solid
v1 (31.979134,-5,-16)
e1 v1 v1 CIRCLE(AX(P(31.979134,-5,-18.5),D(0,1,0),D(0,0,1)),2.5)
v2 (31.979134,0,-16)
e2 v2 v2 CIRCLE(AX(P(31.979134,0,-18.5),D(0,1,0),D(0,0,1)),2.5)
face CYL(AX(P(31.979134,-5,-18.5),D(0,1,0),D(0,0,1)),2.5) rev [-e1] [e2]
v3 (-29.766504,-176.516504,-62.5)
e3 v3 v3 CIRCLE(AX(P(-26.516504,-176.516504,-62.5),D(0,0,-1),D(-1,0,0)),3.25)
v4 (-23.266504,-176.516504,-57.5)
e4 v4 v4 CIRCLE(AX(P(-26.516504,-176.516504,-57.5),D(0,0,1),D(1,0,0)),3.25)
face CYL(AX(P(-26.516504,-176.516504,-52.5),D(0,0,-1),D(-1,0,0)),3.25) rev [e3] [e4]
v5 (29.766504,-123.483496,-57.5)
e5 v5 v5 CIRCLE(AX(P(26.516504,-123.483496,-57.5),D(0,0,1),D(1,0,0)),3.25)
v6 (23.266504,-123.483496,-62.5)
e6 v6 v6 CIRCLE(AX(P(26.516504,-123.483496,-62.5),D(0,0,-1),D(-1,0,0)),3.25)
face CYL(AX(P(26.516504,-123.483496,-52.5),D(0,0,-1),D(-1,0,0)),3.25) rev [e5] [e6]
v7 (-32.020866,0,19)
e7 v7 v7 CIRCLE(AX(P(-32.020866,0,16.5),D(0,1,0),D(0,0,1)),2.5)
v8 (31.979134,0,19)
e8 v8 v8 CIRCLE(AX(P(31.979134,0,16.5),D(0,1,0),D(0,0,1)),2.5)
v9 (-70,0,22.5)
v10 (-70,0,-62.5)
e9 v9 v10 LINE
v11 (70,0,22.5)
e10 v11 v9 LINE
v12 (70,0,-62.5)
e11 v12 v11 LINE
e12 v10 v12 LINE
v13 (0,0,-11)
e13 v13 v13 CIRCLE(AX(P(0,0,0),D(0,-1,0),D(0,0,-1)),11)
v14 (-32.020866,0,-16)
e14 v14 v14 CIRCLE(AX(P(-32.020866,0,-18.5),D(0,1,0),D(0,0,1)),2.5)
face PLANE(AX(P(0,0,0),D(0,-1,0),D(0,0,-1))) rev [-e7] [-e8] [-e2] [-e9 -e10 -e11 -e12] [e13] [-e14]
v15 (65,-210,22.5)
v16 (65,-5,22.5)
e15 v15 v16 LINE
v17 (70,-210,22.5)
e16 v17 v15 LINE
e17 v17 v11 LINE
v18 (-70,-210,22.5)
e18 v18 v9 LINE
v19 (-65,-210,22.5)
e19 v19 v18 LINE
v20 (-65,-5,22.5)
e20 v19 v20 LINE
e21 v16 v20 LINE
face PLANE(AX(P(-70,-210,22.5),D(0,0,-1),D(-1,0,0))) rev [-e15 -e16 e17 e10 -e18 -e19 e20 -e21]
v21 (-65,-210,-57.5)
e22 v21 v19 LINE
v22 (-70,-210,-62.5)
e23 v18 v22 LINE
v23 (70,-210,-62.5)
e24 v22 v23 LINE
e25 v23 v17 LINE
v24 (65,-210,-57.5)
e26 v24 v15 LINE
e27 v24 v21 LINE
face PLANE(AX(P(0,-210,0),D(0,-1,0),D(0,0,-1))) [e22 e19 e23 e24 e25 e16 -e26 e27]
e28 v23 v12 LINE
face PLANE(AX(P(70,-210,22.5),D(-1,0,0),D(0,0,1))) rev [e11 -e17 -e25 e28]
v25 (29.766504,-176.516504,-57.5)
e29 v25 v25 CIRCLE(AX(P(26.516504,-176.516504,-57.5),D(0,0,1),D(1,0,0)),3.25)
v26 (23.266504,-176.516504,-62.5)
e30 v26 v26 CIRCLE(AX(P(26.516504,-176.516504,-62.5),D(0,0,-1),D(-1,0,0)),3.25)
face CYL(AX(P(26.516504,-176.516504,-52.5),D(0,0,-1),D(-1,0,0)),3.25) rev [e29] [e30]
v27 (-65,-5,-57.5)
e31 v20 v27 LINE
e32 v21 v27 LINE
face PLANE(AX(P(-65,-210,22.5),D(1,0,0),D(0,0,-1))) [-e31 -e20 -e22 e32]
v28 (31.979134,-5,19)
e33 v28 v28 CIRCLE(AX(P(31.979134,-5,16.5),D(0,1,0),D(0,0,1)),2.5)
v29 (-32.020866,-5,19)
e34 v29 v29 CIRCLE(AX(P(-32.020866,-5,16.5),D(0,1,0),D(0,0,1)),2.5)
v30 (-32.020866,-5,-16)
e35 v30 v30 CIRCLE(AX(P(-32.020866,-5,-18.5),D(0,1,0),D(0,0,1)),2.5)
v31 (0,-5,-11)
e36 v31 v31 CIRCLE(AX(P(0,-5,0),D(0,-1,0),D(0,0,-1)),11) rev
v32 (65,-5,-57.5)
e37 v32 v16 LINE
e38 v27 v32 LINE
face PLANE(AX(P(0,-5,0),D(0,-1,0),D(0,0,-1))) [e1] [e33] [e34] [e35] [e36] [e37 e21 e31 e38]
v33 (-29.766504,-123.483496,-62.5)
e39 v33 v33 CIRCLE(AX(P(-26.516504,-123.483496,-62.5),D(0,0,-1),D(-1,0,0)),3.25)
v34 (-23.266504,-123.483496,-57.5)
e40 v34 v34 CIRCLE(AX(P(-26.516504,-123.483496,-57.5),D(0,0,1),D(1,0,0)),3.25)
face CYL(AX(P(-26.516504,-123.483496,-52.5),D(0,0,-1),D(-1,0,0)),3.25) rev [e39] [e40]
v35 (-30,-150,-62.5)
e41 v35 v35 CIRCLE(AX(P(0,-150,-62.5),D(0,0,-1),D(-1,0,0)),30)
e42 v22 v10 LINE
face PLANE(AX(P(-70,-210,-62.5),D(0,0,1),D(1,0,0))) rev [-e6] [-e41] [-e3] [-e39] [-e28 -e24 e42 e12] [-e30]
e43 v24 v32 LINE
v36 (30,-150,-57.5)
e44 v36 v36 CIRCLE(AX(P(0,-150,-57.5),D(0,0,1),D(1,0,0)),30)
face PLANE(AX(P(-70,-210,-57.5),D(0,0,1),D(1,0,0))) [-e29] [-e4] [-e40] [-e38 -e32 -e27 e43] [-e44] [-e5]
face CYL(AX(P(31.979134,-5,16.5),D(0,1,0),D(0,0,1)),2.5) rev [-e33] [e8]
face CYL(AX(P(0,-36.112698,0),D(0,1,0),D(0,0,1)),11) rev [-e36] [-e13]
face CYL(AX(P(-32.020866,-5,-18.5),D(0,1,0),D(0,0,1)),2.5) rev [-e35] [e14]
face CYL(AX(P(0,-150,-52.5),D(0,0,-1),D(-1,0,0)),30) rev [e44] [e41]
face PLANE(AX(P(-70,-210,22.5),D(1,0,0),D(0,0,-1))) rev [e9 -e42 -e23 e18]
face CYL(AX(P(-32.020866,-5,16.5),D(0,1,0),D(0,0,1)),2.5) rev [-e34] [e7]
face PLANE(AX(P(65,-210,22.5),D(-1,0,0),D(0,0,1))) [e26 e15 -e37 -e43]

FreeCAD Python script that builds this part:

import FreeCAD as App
import Part
import Sketcher


def faces_at(feature, points):
    """Names of the faces that lie closest to the given points."""
    faces = feature.Shape.Faces
    near = lambda p: min(range(len(faces)), key=lambda i: faces[i].distToShape(Part.Vertex(*p))[0])
    return sorted({f"Face{near(p) + 1}" for p in points})

doc = App.newDocument("Part")
body = doc.addObject("PartDesign::Body", "Body")

# Sketch on XZ plane
sketch1 = doc.addObject("Sketcher::SketchObject", "Sketch")
body.addObject(sketch1)
sketch1.AttachmentSupport = (doc.XZ_Plane, [""])
sketch1.MapMode = "FlatFace"
sketch1.addGeometry(Part.Circle(App.Vector(0, 0, 0), App.Vector(0, 0, 1), 13), False)
sketch1.addConstraint(Sketcher.Constraint("Coincident", 0, 3, -1, 1))
sketch1.addConstraint(Sketcher.Constraint("Diameter", 0, 26.0))
pad1 = doc.addObject("PartDesign::Pad", "Pad")
body.addObject(pad1)
pad1.Profile = sketch1
pad1.Length = 20
pad1.Reversed = True

# Sketch on XZ plane
sketch2 = doc.addObject("Sketcher::SketchObject", "Sketch001")
body.addObject(sketch2)
sketch2.AttachmentSupport = (doc.XZ_Plane, [""])
sketch2.MapMode = "FlatFace"
sketch2.AttachmentOffset = App.Placement(App.Vector(0, 0, -20), App.Rotation())
sketch2.addGeometry(Part.Circle(App.Vector(0, 0, 0), App.Vector(0, 0, 1), 13), False)
sketch2.addConstraint(Sketcher.Constraint("Coincident", 0, 3, -1, 1))
sketch2.addConstraint(Sketcher.Constraint("Diameter", 0, 26.0))
pad2 = doc.addObject("PartDesign::Pad", "Pad001")
body.addObject(pad2)
pad2.Profile = sketch2
pad2.Length = 400
pad2.Reversed = True
body2 = doc.addObject("PartDesign::Body", "Body001")

# Sketch on XZ plane
sketch3 = doc.addObject("Sketcher::SketchObject", "Sketch002")
body2.addObject(sketch3)
sketch3.AttachmentSupport = (doc.getObject("XZ_Plane001"), [""])
sketch3.MapMode = "FlatFace"
sketch3.addGeometry(Part.LineSegment(App.Vector(-70, 22.5, 0), App.Vector(-70, -62.5, 0)), False)
sketch3.addGeometry(Part.LineSegment(App.Vector(-70, -62.5, 0), App.Vector(70, -62.5, 0)), False)
sketch3.addGeometry(Part.LineSegment(App.Vector(70, -62.5, 0), App.Vector(70, 22.5, 0)), False)
sketch3.addGeometry(Part.LineSegment(App.Vector(70, 22.5, 0), App.Vector(-70, 22.5, 0)), False)
sketch3.addConstraint(Sketcher.Constraint("Coincident", 0, 2, 1, 1))
sketch3.addConstraint(Sketcher.Constraint("Coincident", 1, 2, 2, 1))
sketch3.addConstraint(Sketcher.Constraint("Coincident", 2, 2, 3, 1))
sketch3.addConstraint(Sketcher.Constraint("Coincident", 3, 2, 0, 1))
sketch3.addConstraint(Sketcher.Constraint("Vertical", 0))
sketch3.addConstraint(Sketcher.Constraint("Horizontal", 1))
sketch3.addConstraint(Sketcher.Constraint("Vertical", 2))
sketch3.addConstraint(Sketcher.Constraint("Horizontal", 3))
sketch3.addConstraint(Sketcher.Constraint("DistanceX", 1, 1, 1, 2, 140.0))
sketch3.addConstraint(Sketcher.Constraint("DistanceY", 0, 2, 0, 1, 85.0))
sketch3.addConstraint(Sketcher.Constraint("DistanceX", 0, 2, -1, 1, 70.0))
sketch3.addConstraint(Sketcher.Constraint("DistanceY", 0, 2, -1, 1, 62.5))
pad3 = doc.addObject("PartDesign::Pad", "Pad002")
body2.addObject(pad3)
pad3.Profile = sketch3
pad3.Length = 210
doc.recompute()

thickness = doc.addObject("PartDesign::Thickness", "Thickness")
body2.addObject(thickness)
thickness.Base = (pad3, faces_at(pad3, [(0, -105, 22.5)]))
thickness.Value = 5
thickness.Reversed = True
thickness.Join = "Intersection"

# Sketch on XY plane
sketch4 = doc.addObject("Sketcher::SketchObject", "Sketch003")
body2.addObject(sketch4)
sketch4.AttachmentSupport = (doc.getObject("XY_Plane001"), [""])
sketch4.MapMode = "FlatFace"
sketch4.AttachmentOffset = App.Placement(App.Vector(0, 0, 22.5), App.Rotation())
sketch4.addGeometry(Part.LineSegment(App.Vector(-65, -205, 0), App.Vector(-65, -210, 0)), False)
sketch4.addGeometry(Part.LineSegment(App.Vector(-65, -210, 0), App.Vector(65, -210, 0)), False)
sketch4.addGeometry(Part.LineSegment(App.Vector(65, -210, 0), App.Vector(65, -205, 0)), False)
sketch4.addGeometry(Part.LineSegment(App.Vector(65, -205, 0), App.Vector(-65, -205, 0)), False)
sketch4.addConstraint(Sketcher.Constraint("Coincident", 0, 2, 1, 1))
sketch4.addConstraint(Sketcher.Constraint("Coincident", 1, 2, 2, 1))
sketch4.addConstraint(Sketcher.Constraint("Coincident", 2, 2, 3, 1))
sketch4.addConstraint(Sketcher.Constraint("Coincident", 3, 2, 0, 1))
sketch4.addConstraint(Sketcher.Constraint("Vertical", 0))
sketch4.addConstraint(Sketcher.Constraint("Horizontal", 1))
sketch4.addConstraint(Sketcher.Constraint("Vertical", 2))
sketch4.addConstraint(Sketcher.Constraint("Horizontal", 3))
sketch4.addConstraint(Sketcher.Constraint("DistanceX", 1, 1, 1, 2, 130.0))
sketch4.addConstraint(Sketcher.Constraint("DistanceY", 0, 2, 0, 1, 5.0))
sketch4.addConstraint(Sketcher.Constraint("DistanceX", 0, 2, -1, 1, 65.0))
sketch4.addConstraint(Sketcher.Constraint("DistanceY", 0, 2, -1, 1, 210.0))
pocket1 = doc.addObject("PartDesign::Pocket", "Pocket")
body2.addObject(pocket1)
pocket1.Profile = sketch4
pocket1.Length = 80

# Sketch on XY plane
sketch5 = doc.addObject("Sketcher::SketchObject", "Sketch004")
body2.addObject(sketch5)
sketch5.AttachmentSupport = (doc.getObject("XY_Plane001"), [""])
sketch5.MapMode = "FlatFace"
sketch5.AttachmentOffset = App.Placement(App.Vector(0, 0, -62.5), App.Rotation())
sketch5.addGeometry(Part.Circle(App.Vector(0, -150, 0), App.Vector(0, 0, 1), 30), False)
sketch5.addGeometry(Part.Circle(App.Vector(-26.516504, -123.483496, 0), App.Vector(0, 0, 1), 3.25), False)
sketch5.addGeometry(Part.Circle(App.Vector(-26.516504, -176.516504, 0), App.Vector(0, 0, 1), 3.25), False)
sketch5.addGeometry(Part.Circle(App.Vector(26.516504, -176.516504, 0), App.Vector(0, 0, 1), 3.25), False)
sketch5.addGeometry(Part.Circle(App.Vector(26.516504, -123.483496, 0), App.Vector(0, 0, 1), 3.25), False)
sketch5.addConstraint(Sketcher.Constraint("Equal", 1, 2))
sketch5.addConstraint(Sketcher.Constraint("Equal", 2, 3))
sketch5.addConstraint(Sketcher.Constraint("Equal", 3, 4))
sketch5.addConstraint(Sketcher.Constraint("Symmetric", 2, 3, 3, 3, -2))
sketch5.addConstraint(Sketcher.Constraint("Symmetric", 1, 3, 4, 3, -2))
sketch5.addConstraint(Sketcher.Constraint("PointOnObject", 0, 3, -2))
sketch5.addConstraint(Sketcher.Constraint("Vertical", 1, 3, 2, 3))
sketch5.addConstraint(Sketcher.Constraint("Diameter", 0, 60.0))
sketch5.addConstraint(Sketcher.Constraint("Diameter", 1, 6.5))
sketch5.addConstraint(Sketcher.Constraint("DistanceY", 0, 3, -1, 1, 150.0))
sketch5.addConstraint(Sketcher.Constraint("DistanceY", 2, 3, 1, 3, 53.033009))
sketch5.addConstraint(Sketcher.Constraint("DistanceX", 2, 3, 3, 3, 53.033009))
sketch5.addConstraint(Sketcher.Constraint("DistanceY", 1, 3, -1, 1, 123.483496))
pocket2 = doc.addObject("PartDesign::Pocket", "Pocket001")
body2.addObject(pocket2)
pocket2.Profile = sketch5
pocket2.Length = 10
pocket2.Reversed = True
body3 = doc.addObject("PartDesign::Body", "Body002")

# Sketch on XZ plane
sketch6 = doc.addObject("Sketcher::SketchObject", "Sketch005")
body3.addObject(sketch6)
sketch6.AttachmentSupport = (doc.getObject("XZ_Plane002"), [""])
sketch6.MapMode = "FlatFace"
sketch6.AttachmentOffset = App.Placement(App.Vector(0, 0, -420), App.Rotation())
sketch6.addGeometry(Part.Circle(App.Vector(0, 0, 0), App.Vector(0, 0, 1), 11), False)
sketch6.addConstraint(Sketcher.Constraint("Coincident", 0, 3, -1, 1))
sketch6.addConstraint(Sketcher.Constraint("Diameter", 0, 22.0))
pad4 = doc.addObject("PartDesign::Pad", "Pad003")
body3.addObject(pad4)
pad4.Profile = sketch6
pad4.Length = 425
doc.recompute()

body4 = doc.addObject("PartDesign::Body", "Body003")
body4.BaseFeature = body3
boolean = doc.addObject("PartDesign::Boolean", "Boolean")
body.addObject(boolean)
boolean.Type = "Cut"
boolean.addObjects([body4])
doc.recompute()

# Sketch on XZ plane
sketch7 = doc.addObject("Sketcher::SketchObject", "Sketch006")
body.addObject(sketch7)
sketch7.AttachmentSupport = (doc.XZ_Plane, [""])
sketch7.MapMode = "FlatFace"
sketch7.AttachmentOffset = App.Placement(App.Vector(0, 0, -420), App.Rotation())
sketch7.addGeometry(Part.Circle(App.Vector(0, 0, 0), App.Vector(0, 0, 1), 13), False)
sketch7.addConstraint(Sketcher.Constraint("Coincident", 0, 3, -1, 1))
sketch7.addConstraint(Sketcher.Constraint("Diameter", 0, 26.0))
pocket3 = doc.addObject("PartDesign::Pocket", "Pocket002")
body.addObject(pocket3)
pocket3.Profile = sketch7
pocket3.Length = 420
pocket3.Reversed = True
doc.recompute()

boolean2 = doc.addObject("PartDesign::Boolean", "Boolean001")
body2.addObject(boolean2)
boolean2.Type = "Cut"
boolean2.addObjects([body3])

# Sketch on XZ plane
sketch8 = doc.addObject("Sketcher::SketchObject", "Sketch007")
body2.addObject(sketch8)
sketch8.AttachmentSupport = (doc.getObject("XZ_Plane001"), [""])
sketch8.MapMode = "FlatFace"
sketch8.addGeometry(Part.Circle(App.Vector(-32.020866, 16.5, 0), App.Vector(0, 0, 1), 2.5), False)
sketch8.addGeometry(Part.Circle(App.Vector(-32.020866, -18.5, 0), App.Vector(0, 0, 1), 2.5), False)
sketch8.addGeometry(Part.Circle(App.Vector(31.979134, 16.5, 0), App.Vector(0, 0, 1), 2.5), False)
sketch8.addGeometry(Part.Circle(App.Vector(31.979134, -18.5, 0), App.Vector(0, 0, 1), 2.5), False)
sketch8.addConstraint(Sketcher.Constraint("Equal", 0, 1))
sketch8.addConstraint(Sketcher.Constraint("Equal", 1, 2))
sketch8.addConstraint(Sketcher.Constraint("Equal", 2, 3))
sketch8.addConstraint(Sketcher.Constraint("Horizontal", 0, 3, 2, 3))
sketch8.addConstraint(Sketcher.Constraint("Horizontal", 1, 3, 3, 3))
sketch8.addConstraint(Sketcher.Constraint("Vertical", 0, 3, 1, 3))
sketch8.addConstraint(Sketcher.Constraint("Vertical", 2, 3, 3, 3))
sketch8.addConstraint(Sketcher.Constraint("Diameter", 0, 5.0))
sketch8.addConstraint(Sketcher.Constraint("DistanceY", 1, 3, 0, 3, 35.0))
sketch8.addConstraint(Sketcher.Constraint("DistanceX", 0, 3, 2, 3, 64.0))
sketch8.addConstraint(Sketcher.Constraint("DistanceY", -1, 1, 0, 3, 16.5))
sketch8.addConstraint(Sketcher.Constraint("DistanceX", 0, 3, -1, 1, 32.020866))
pocket4 = doc.addObject("PartDesign::Pocket", "Pocket003")
body2.addObject(pocket4)
pocket4.Profile = sketch8
pocket4.Length = 5
pocket4.Reversed = True

doc.recompute()
